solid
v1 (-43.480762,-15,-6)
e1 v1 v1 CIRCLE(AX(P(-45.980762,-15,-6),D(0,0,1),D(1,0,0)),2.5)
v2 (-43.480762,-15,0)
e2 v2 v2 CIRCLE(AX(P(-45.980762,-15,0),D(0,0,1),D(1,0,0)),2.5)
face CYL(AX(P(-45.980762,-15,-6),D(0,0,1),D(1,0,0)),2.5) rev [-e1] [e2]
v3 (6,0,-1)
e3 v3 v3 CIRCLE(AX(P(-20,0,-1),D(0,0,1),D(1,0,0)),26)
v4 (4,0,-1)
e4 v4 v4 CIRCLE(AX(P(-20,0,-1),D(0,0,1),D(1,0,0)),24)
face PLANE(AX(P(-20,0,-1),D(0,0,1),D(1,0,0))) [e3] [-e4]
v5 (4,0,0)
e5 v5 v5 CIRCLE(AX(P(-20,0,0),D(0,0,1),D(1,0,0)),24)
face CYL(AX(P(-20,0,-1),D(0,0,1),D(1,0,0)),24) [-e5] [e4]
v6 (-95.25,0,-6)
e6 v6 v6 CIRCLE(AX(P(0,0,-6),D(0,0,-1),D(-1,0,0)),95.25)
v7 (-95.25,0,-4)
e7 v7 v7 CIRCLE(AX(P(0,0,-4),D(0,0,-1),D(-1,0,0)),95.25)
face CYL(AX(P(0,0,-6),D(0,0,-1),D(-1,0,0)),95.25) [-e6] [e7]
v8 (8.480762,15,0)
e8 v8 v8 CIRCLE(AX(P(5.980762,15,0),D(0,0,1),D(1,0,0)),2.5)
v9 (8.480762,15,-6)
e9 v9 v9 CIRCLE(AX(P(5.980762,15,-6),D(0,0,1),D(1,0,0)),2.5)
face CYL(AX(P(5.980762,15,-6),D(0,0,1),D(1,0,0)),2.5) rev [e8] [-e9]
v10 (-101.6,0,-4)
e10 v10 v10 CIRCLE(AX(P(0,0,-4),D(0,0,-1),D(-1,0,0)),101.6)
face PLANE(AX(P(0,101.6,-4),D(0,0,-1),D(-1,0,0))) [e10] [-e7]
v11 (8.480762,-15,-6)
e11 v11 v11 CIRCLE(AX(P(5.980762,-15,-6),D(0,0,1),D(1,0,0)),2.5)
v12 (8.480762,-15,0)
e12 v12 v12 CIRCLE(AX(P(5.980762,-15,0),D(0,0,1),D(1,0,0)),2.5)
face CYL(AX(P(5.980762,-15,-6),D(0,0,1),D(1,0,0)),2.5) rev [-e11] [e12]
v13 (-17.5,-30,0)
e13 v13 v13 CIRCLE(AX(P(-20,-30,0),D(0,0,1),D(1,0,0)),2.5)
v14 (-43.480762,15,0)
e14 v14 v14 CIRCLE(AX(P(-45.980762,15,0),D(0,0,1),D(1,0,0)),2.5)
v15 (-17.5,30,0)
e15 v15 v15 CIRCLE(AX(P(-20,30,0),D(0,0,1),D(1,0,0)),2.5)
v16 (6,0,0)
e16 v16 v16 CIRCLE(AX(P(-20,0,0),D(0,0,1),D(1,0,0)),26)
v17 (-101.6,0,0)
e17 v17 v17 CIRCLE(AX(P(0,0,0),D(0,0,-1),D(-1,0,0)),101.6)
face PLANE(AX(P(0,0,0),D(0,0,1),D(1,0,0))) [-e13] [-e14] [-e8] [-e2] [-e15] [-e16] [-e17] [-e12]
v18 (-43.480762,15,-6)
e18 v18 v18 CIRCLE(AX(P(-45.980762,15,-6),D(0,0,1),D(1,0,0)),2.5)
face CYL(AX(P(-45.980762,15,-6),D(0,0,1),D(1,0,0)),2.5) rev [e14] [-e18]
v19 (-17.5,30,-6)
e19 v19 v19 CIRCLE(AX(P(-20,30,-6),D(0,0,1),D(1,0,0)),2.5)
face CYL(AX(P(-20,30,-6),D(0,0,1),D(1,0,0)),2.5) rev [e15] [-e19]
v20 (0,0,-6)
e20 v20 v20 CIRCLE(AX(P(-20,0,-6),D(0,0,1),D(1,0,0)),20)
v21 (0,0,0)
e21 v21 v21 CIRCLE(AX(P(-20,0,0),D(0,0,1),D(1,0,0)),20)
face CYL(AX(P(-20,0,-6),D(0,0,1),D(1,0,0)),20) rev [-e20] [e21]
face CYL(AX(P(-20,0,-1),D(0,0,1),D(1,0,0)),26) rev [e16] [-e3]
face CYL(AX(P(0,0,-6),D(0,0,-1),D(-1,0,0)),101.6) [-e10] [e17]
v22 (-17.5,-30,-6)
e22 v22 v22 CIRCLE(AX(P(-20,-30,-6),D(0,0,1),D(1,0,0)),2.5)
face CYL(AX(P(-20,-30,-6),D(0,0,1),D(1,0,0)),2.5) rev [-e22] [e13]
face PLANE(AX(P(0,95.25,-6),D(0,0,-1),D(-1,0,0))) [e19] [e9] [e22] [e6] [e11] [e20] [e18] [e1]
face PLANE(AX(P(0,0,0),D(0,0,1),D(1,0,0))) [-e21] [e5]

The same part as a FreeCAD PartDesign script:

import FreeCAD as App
import Part
import Sketcher
from FreeCAD import Vector
Q = App.Units.Quantity


def add_polygon(sketch, points):
    """Adds a closed chain of lines whose ends are joined by coincident constraints."""
    first, n = sketch.GeometryCount, len(points)
    for a, b in zip(points, points[1:] + points[:1]):
        sketch.addGeometry(Part.LineSegment(App.Vector(*a, 0), App.Vector(*b, 0)), False)
    for i in range(n):
        sketch.addConstraint(Sketcher.Constraint("Coincident", first + i, 2, first + (i + 1) % n, 1))

doc = App.newDocument("Part")
body = doc.addObject("PartDesign::Body", "Body")

sketch1 = body.newObject("Sketcher::SketchObject", "Sketch")
sketch1.AttachmentSupport = (doc.getObject("YZ_Plane"), [""])
sketch1.MapMode = "FlatFace"
add_polygon(sketch1, [(101.6, 0), (0, 0), (0, -6), (95.25, -6), (95.25, -4), (101.6, -4)])
sketch1.addConstraint([
    Sketcher.Constraint("Horizontal", 0),
    Sketcher.Constraint("Vertical", 1),
    Sketcher.Constraint("Horizontal", 2),
    Sketcher.Constraint("Vertical", 3),
    Sketcher.Constraint("Horizontal", 4),
    Sketcher.Constraint("Vertical", 5),
    Sketcher.Constraint("Coincident", 0, 2, -1, 1),
    Sketcher.Constraint("DistanceY", 1, 2, 1, 1, Q("6 mm")),
    Sketcher.Constraint("DistanceY", 3, 1, 3, 2, Q("2 mm")),
    Sketcher.Constraint("DistanceX", 0, 2, 0, 1, Q("101.6 mm")),
    Sketcher.Constraint("DistanceX", 2, 1, 2, 2, Q("95.25 mm")),
])
revolution = body.newObject("PartDesign::Revolution", "Revolution")
revolution.Profile = sketch1
revolution.ReferenceAxis = (sketch1, ["V_Axis"])
revolution.Angle = 360

sketch2 = body.newObject("Sketcher::SketchObject", "Sketch001")
sketch2.AttachmentSupport = (doc.getObject("XY_Plane"), [""])
sketch2.MapMode = "FlatFace"
sketch2.addGeometry(Part.Circle(Vector(-20, 0, 0), Vector(0, 0, 1), 20), False)
sketch2.addConstraint([
    Sketcher.Constraint("PointOnObject", 0, 3, -1),
    Sketcher.Constraint("Diameter", 0, Q("40 mm")),
    Sketcher.Constraint("DistanceX", 0, 3, -1, 1, Q("20 mm")),
])
pocket1 = body.newObject("PartDesign::Pocket", "Pocket")
pocket1.Profile = sketch2
pocket1.Type = "ThroughAll"

sketch3 = body.newObject("Sketcher::SketchObject", "Sketch002")
sketch3.AttachmentSupport = (doc.getObject("XY_Plane"), [""])
sketch3.MapMode = "FlatFace"
sketch3.addGeometry([
    Part.Circle(Vector(-20, 30, 0), Vector(0, 0, 1), 2.5),
    Part.Circle(Vector(5.980762, 15, 0), Vector(0, 0, 1), 2.5),
    Part.Circle(Vector(5.980762, -15, 0), Vector(0, 0, 1), 2.5),
    Part.Circle(Vector(-20, -30, 0), Vector(0, 0, 1), 2.5),
    Part.Circle(Vector(-45.980762, -15, 0), Vector(0, 0, 1), 2.5),
    Part.Circle(Vector(-45.980762, 15, 0), Vector(0, 0, 1), 2.5),
], False)
sketch3.addConstraint([
    Sketcher.Constraint("Equal", 0, 1),
    Sketcher.Constraint("Equal", 1, 2),
    Sketcher.Constraint("Equal", 2, 3),
    Sketcher.Constraint("Equal", 3, 4),
    Sketcher.Constraint("Equal", 4, 5),
    Sketcher.Constraint("Symmetric", 1, 3, 2, 3, -1),
    Sketcher.Constraint("Symmetric", 0, 3, 3, 3, -1),
    Sketcher.Constraint("Symmetric", 4, 3, 5, 3, -1),
    Sketcher.Constraint("Horizontal", 2, 3, 4, 3),
    Sketcher.Constraint("Diameter", 0, Q("5 mm")),
    Sketcher.Constraint("DistanceX", 0, 3, -1, 1, Q("20 mm")),
    Sketcher.Constraint("DistanceY", -1, 1, 0, 3, Q("30 mm")),
    Sketcher.Constraint("DistanceY", -1, 1, 1, 3, Q("15 mm")),
    Sketcher.Constraint("DistanceX", -1, 1, 1, 3, Q("5.980762 mm")),
    Sketcher.Constraint("DistanceX", 4, 3, -1, 1, Q("45.980762 mm")),
])
pocket2 = body.newObject("PartDesign::Pocket", "Pocket001")
pocket2.Profile = sketch3
pocket2.Type = "ThroughAll"

sketch4 = body.newObject("Sketcher::SketchObject", "Sketch003")
sketch4.AttachmentSupport = (doc.getObject("XY_Plane"), [""])
sketch4.MapMode = "FlatFace"
sketch4.addGeometry([
    Part.Circle(Vector(-20, 0, 0), Vector(0, 0, 1), 26),
    Part.Circle(Vector(-20, 0, 0), Vector(0, 0, 1), 24),
], False)
sketch4.addConstraint([
    Sketcher.Constraint("Coincident", 1, 3, 0, 3),
    Sketcher.Constraint("PointOnObject", 0, 3, -1),
    Sketcher.Constraint("Diameter", 0, Q("52 mm")),
    Sketcher.Constraint("Diameter", 1, Q("48 mm")),
    Sketcher.Constraint("DistanceX", 0, 3, -1, 1, Q("20 mm")),
])
pocket3 = body.newObject("PartDesign::Pocket", "Pocket002")
pocket3.Profile = sketch4
pocket3.Length = 1

doc.recompute()
